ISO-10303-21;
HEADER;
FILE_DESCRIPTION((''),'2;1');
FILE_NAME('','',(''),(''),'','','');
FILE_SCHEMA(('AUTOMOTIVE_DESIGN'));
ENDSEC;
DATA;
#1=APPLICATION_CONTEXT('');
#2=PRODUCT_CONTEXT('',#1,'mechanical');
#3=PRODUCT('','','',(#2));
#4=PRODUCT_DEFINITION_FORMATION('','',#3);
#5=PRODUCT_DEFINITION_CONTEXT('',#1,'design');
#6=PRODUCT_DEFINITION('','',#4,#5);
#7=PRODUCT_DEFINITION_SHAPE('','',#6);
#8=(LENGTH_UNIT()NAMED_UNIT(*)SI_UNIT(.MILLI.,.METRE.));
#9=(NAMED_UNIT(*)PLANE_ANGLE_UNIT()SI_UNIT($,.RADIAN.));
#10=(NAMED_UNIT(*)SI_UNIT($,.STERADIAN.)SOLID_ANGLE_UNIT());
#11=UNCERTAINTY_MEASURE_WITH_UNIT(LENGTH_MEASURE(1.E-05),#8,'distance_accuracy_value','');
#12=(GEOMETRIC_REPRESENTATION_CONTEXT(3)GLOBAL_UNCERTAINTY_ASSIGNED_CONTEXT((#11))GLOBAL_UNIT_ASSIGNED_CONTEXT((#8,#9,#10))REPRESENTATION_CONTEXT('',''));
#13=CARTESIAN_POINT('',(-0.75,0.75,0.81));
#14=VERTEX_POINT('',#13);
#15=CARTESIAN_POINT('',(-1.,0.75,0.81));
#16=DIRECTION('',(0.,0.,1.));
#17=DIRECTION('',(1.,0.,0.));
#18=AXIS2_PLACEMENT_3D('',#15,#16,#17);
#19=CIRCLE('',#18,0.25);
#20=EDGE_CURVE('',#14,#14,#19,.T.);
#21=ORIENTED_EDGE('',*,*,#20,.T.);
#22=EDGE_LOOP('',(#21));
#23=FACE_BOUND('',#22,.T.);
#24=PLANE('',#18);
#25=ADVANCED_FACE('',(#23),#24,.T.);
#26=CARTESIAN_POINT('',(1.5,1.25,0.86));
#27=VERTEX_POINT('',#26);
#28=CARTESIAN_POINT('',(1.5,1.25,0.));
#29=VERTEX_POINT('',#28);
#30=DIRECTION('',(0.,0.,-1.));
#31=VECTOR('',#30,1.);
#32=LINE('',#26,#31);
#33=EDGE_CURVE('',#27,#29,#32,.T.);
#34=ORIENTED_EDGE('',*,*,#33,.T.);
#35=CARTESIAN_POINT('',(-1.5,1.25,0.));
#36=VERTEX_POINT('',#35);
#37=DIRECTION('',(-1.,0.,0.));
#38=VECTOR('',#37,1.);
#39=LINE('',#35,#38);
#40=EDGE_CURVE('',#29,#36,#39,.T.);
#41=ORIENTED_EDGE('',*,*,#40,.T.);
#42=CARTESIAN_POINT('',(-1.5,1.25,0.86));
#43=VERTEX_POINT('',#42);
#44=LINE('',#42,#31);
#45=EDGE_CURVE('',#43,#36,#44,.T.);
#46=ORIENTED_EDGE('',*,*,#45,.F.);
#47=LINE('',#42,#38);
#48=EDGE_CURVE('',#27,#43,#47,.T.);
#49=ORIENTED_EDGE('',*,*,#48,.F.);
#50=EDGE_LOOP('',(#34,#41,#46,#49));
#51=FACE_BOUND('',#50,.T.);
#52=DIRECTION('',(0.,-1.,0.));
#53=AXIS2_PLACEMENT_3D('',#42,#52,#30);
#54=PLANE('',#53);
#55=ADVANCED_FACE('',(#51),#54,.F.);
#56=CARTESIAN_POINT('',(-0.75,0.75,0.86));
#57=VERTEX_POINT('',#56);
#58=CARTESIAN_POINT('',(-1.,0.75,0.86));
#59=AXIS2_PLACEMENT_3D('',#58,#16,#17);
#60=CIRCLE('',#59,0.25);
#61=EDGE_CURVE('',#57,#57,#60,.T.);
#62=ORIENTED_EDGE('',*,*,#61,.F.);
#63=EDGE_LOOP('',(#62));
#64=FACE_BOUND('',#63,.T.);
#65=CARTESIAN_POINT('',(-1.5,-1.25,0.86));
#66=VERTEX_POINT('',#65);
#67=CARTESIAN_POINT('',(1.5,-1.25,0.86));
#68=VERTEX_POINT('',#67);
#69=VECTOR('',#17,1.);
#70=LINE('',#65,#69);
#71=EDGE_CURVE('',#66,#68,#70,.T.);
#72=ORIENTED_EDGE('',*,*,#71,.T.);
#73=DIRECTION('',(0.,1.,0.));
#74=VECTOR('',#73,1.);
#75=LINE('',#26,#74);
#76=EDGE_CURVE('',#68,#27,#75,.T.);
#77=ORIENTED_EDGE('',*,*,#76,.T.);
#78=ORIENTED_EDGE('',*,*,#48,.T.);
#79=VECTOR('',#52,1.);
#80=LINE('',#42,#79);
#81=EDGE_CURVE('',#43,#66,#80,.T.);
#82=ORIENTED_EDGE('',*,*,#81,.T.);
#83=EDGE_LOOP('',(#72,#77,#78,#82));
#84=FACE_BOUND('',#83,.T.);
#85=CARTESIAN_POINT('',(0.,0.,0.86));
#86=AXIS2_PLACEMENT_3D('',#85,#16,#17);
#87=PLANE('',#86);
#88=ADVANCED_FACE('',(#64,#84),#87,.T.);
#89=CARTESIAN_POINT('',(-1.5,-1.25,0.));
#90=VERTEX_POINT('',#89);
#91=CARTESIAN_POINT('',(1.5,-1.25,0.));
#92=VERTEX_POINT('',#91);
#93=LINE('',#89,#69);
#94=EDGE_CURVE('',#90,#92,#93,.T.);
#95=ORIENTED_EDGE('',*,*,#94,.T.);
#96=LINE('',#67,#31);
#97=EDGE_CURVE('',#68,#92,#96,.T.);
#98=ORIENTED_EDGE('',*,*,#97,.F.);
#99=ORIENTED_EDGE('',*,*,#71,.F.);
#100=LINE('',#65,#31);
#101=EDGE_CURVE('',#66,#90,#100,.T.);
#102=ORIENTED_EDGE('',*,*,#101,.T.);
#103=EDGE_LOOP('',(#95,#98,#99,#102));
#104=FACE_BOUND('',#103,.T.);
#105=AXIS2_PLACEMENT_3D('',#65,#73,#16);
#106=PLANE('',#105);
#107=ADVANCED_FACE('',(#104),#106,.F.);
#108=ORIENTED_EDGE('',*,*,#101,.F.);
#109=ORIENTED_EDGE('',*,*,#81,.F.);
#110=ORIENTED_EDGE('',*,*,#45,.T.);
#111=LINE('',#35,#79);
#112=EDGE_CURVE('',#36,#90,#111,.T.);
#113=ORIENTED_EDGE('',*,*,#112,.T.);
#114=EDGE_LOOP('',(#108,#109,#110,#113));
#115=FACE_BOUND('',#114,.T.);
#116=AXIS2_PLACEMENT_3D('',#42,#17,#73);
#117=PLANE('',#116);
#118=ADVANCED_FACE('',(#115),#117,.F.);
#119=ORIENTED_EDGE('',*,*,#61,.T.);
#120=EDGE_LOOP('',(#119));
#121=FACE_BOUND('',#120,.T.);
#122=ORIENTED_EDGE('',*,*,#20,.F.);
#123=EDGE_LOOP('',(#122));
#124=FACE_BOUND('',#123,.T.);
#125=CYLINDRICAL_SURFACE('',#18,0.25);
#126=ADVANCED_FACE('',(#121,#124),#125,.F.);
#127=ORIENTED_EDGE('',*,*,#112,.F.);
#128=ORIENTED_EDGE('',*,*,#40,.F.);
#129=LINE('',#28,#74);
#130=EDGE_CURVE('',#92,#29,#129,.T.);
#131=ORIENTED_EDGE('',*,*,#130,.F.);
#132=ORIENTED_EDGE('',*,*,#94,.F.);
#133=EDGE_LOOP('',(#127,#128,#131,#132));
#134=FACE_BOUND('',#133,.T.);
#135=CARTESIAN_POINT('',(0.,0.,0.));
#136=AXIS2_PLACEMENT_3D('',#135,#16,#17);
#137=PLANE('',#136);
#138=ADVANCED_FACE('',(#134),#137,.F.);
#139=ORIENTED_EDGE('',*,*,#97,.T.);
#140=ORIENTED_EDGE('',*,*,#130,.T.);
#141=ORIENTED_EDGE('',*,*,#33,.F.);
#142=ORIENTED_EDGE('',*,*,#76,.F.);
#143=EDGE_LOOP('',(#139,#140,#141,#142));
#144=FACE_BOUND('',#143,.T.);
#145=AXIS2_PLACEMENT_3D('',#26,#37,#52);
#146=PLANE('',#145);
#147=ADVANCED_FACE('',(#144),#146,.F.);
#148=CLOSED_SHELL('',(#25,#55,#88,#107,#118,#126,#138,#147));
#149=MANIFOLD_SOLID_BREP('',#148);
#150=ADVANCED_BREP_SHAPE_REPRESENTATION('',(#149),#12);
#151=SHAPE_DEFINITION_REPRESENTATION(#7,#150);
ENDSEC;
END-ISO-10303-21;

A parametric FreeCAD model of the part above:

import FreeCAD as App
import Part
import Sketcher

V = App.Vector
Q = App.Units.Quantity

doc = App.newDocument("Part")
body = doc.addObject("PartDesign::Body", "Body")

# Sketch on XY plane
sketch1 = body.newObject("Sketcher::SketchObject", "Sketch")
sketch1.AttachmentSupport = (doc.getObject("XY_Plane"), [""])
sketch1.MapMode = "FlatFace"
sketch1.addGeometry([
    Part.LineSegment(V(-1.5, 1.2, 0), V(-1.5, -1.2, 0)),
    Part.LineSegment(V(-1.5, -1.2, 0), V(1.5, -1.2, 0)),
    Part.LineSegment(V(1.5, -1.2, 0), V(1.5, 1.2, 0)),
    Part.LineSegment(V(1.5, 1.2, 0), V(-1.5, 1.2, 0)),
], False)
sketch1.addConstraint([
    Sketcher.Constraint("Coincident", 0, 2, 1, 1),
    Sketcher.Constraint("Coincident", 1, 2, 2, 1),
    Sketcher.Constraint("Coincident", 2, 2, 3, 1),
    Sketcher.Constraint("Coincident", 3, 2, 0, 1),
    Sketcher.Constraint("Vertical", 0),
    Sketcher.Constraint("Horizontal", 1),
    Sketcher.Constraint("Vertical", 2),
    Sketcher.Constraint("Horizontal", 3),
    Sketcher.Constraint("Symmetric", 0, 2, 2, 2, -1, 1),
    Sketcher.Constraint("DistanceX", 1, 1, 1, 2, Q("3 mm")),
    Sketcher.Constraint("DistanceY", 0, 2, 0, 1, Q("2.5 mm")),
])
pad1 = body.newObject("PartDesign::Pad", "Pad")
pad1.Profile = sketch1
pad1.Length = 0.86

# Sketch on XY plane
sketch2 = body.newObject("Sketcher::SketchObject", "Sketch001")
sketch2.AttachmentSupport = (doc.getObject("XY_Plane"), [""])
sketch2.MapMode = "FlatFace"
sketch2.AttachmentOffset = App.Placement(V(0, 0, 0.86), App.Rotation())
sketch2.addGeometry(Part.Circle(V(-1, 0.75, 0), V(0, 0, 1), 0.25), False)
sketch2.addConstraint([
    Sketcher.Constraint("Diameter", 0, Q("0.5 mm")),
    Sketcher.Constraint("DistanceX", 0, 3, -1, 1, Q("1 mm")),
    Sketcher.Constraint("DistanceY", -1, 1, 0, 3, Q("0.75 mm")),
])
pocket1 = body.newObject("PartDesign::Pocket", "Pocket")
pocket1.Profile = sketch2
pocket1.Length = 0.05

doc.recompute()
